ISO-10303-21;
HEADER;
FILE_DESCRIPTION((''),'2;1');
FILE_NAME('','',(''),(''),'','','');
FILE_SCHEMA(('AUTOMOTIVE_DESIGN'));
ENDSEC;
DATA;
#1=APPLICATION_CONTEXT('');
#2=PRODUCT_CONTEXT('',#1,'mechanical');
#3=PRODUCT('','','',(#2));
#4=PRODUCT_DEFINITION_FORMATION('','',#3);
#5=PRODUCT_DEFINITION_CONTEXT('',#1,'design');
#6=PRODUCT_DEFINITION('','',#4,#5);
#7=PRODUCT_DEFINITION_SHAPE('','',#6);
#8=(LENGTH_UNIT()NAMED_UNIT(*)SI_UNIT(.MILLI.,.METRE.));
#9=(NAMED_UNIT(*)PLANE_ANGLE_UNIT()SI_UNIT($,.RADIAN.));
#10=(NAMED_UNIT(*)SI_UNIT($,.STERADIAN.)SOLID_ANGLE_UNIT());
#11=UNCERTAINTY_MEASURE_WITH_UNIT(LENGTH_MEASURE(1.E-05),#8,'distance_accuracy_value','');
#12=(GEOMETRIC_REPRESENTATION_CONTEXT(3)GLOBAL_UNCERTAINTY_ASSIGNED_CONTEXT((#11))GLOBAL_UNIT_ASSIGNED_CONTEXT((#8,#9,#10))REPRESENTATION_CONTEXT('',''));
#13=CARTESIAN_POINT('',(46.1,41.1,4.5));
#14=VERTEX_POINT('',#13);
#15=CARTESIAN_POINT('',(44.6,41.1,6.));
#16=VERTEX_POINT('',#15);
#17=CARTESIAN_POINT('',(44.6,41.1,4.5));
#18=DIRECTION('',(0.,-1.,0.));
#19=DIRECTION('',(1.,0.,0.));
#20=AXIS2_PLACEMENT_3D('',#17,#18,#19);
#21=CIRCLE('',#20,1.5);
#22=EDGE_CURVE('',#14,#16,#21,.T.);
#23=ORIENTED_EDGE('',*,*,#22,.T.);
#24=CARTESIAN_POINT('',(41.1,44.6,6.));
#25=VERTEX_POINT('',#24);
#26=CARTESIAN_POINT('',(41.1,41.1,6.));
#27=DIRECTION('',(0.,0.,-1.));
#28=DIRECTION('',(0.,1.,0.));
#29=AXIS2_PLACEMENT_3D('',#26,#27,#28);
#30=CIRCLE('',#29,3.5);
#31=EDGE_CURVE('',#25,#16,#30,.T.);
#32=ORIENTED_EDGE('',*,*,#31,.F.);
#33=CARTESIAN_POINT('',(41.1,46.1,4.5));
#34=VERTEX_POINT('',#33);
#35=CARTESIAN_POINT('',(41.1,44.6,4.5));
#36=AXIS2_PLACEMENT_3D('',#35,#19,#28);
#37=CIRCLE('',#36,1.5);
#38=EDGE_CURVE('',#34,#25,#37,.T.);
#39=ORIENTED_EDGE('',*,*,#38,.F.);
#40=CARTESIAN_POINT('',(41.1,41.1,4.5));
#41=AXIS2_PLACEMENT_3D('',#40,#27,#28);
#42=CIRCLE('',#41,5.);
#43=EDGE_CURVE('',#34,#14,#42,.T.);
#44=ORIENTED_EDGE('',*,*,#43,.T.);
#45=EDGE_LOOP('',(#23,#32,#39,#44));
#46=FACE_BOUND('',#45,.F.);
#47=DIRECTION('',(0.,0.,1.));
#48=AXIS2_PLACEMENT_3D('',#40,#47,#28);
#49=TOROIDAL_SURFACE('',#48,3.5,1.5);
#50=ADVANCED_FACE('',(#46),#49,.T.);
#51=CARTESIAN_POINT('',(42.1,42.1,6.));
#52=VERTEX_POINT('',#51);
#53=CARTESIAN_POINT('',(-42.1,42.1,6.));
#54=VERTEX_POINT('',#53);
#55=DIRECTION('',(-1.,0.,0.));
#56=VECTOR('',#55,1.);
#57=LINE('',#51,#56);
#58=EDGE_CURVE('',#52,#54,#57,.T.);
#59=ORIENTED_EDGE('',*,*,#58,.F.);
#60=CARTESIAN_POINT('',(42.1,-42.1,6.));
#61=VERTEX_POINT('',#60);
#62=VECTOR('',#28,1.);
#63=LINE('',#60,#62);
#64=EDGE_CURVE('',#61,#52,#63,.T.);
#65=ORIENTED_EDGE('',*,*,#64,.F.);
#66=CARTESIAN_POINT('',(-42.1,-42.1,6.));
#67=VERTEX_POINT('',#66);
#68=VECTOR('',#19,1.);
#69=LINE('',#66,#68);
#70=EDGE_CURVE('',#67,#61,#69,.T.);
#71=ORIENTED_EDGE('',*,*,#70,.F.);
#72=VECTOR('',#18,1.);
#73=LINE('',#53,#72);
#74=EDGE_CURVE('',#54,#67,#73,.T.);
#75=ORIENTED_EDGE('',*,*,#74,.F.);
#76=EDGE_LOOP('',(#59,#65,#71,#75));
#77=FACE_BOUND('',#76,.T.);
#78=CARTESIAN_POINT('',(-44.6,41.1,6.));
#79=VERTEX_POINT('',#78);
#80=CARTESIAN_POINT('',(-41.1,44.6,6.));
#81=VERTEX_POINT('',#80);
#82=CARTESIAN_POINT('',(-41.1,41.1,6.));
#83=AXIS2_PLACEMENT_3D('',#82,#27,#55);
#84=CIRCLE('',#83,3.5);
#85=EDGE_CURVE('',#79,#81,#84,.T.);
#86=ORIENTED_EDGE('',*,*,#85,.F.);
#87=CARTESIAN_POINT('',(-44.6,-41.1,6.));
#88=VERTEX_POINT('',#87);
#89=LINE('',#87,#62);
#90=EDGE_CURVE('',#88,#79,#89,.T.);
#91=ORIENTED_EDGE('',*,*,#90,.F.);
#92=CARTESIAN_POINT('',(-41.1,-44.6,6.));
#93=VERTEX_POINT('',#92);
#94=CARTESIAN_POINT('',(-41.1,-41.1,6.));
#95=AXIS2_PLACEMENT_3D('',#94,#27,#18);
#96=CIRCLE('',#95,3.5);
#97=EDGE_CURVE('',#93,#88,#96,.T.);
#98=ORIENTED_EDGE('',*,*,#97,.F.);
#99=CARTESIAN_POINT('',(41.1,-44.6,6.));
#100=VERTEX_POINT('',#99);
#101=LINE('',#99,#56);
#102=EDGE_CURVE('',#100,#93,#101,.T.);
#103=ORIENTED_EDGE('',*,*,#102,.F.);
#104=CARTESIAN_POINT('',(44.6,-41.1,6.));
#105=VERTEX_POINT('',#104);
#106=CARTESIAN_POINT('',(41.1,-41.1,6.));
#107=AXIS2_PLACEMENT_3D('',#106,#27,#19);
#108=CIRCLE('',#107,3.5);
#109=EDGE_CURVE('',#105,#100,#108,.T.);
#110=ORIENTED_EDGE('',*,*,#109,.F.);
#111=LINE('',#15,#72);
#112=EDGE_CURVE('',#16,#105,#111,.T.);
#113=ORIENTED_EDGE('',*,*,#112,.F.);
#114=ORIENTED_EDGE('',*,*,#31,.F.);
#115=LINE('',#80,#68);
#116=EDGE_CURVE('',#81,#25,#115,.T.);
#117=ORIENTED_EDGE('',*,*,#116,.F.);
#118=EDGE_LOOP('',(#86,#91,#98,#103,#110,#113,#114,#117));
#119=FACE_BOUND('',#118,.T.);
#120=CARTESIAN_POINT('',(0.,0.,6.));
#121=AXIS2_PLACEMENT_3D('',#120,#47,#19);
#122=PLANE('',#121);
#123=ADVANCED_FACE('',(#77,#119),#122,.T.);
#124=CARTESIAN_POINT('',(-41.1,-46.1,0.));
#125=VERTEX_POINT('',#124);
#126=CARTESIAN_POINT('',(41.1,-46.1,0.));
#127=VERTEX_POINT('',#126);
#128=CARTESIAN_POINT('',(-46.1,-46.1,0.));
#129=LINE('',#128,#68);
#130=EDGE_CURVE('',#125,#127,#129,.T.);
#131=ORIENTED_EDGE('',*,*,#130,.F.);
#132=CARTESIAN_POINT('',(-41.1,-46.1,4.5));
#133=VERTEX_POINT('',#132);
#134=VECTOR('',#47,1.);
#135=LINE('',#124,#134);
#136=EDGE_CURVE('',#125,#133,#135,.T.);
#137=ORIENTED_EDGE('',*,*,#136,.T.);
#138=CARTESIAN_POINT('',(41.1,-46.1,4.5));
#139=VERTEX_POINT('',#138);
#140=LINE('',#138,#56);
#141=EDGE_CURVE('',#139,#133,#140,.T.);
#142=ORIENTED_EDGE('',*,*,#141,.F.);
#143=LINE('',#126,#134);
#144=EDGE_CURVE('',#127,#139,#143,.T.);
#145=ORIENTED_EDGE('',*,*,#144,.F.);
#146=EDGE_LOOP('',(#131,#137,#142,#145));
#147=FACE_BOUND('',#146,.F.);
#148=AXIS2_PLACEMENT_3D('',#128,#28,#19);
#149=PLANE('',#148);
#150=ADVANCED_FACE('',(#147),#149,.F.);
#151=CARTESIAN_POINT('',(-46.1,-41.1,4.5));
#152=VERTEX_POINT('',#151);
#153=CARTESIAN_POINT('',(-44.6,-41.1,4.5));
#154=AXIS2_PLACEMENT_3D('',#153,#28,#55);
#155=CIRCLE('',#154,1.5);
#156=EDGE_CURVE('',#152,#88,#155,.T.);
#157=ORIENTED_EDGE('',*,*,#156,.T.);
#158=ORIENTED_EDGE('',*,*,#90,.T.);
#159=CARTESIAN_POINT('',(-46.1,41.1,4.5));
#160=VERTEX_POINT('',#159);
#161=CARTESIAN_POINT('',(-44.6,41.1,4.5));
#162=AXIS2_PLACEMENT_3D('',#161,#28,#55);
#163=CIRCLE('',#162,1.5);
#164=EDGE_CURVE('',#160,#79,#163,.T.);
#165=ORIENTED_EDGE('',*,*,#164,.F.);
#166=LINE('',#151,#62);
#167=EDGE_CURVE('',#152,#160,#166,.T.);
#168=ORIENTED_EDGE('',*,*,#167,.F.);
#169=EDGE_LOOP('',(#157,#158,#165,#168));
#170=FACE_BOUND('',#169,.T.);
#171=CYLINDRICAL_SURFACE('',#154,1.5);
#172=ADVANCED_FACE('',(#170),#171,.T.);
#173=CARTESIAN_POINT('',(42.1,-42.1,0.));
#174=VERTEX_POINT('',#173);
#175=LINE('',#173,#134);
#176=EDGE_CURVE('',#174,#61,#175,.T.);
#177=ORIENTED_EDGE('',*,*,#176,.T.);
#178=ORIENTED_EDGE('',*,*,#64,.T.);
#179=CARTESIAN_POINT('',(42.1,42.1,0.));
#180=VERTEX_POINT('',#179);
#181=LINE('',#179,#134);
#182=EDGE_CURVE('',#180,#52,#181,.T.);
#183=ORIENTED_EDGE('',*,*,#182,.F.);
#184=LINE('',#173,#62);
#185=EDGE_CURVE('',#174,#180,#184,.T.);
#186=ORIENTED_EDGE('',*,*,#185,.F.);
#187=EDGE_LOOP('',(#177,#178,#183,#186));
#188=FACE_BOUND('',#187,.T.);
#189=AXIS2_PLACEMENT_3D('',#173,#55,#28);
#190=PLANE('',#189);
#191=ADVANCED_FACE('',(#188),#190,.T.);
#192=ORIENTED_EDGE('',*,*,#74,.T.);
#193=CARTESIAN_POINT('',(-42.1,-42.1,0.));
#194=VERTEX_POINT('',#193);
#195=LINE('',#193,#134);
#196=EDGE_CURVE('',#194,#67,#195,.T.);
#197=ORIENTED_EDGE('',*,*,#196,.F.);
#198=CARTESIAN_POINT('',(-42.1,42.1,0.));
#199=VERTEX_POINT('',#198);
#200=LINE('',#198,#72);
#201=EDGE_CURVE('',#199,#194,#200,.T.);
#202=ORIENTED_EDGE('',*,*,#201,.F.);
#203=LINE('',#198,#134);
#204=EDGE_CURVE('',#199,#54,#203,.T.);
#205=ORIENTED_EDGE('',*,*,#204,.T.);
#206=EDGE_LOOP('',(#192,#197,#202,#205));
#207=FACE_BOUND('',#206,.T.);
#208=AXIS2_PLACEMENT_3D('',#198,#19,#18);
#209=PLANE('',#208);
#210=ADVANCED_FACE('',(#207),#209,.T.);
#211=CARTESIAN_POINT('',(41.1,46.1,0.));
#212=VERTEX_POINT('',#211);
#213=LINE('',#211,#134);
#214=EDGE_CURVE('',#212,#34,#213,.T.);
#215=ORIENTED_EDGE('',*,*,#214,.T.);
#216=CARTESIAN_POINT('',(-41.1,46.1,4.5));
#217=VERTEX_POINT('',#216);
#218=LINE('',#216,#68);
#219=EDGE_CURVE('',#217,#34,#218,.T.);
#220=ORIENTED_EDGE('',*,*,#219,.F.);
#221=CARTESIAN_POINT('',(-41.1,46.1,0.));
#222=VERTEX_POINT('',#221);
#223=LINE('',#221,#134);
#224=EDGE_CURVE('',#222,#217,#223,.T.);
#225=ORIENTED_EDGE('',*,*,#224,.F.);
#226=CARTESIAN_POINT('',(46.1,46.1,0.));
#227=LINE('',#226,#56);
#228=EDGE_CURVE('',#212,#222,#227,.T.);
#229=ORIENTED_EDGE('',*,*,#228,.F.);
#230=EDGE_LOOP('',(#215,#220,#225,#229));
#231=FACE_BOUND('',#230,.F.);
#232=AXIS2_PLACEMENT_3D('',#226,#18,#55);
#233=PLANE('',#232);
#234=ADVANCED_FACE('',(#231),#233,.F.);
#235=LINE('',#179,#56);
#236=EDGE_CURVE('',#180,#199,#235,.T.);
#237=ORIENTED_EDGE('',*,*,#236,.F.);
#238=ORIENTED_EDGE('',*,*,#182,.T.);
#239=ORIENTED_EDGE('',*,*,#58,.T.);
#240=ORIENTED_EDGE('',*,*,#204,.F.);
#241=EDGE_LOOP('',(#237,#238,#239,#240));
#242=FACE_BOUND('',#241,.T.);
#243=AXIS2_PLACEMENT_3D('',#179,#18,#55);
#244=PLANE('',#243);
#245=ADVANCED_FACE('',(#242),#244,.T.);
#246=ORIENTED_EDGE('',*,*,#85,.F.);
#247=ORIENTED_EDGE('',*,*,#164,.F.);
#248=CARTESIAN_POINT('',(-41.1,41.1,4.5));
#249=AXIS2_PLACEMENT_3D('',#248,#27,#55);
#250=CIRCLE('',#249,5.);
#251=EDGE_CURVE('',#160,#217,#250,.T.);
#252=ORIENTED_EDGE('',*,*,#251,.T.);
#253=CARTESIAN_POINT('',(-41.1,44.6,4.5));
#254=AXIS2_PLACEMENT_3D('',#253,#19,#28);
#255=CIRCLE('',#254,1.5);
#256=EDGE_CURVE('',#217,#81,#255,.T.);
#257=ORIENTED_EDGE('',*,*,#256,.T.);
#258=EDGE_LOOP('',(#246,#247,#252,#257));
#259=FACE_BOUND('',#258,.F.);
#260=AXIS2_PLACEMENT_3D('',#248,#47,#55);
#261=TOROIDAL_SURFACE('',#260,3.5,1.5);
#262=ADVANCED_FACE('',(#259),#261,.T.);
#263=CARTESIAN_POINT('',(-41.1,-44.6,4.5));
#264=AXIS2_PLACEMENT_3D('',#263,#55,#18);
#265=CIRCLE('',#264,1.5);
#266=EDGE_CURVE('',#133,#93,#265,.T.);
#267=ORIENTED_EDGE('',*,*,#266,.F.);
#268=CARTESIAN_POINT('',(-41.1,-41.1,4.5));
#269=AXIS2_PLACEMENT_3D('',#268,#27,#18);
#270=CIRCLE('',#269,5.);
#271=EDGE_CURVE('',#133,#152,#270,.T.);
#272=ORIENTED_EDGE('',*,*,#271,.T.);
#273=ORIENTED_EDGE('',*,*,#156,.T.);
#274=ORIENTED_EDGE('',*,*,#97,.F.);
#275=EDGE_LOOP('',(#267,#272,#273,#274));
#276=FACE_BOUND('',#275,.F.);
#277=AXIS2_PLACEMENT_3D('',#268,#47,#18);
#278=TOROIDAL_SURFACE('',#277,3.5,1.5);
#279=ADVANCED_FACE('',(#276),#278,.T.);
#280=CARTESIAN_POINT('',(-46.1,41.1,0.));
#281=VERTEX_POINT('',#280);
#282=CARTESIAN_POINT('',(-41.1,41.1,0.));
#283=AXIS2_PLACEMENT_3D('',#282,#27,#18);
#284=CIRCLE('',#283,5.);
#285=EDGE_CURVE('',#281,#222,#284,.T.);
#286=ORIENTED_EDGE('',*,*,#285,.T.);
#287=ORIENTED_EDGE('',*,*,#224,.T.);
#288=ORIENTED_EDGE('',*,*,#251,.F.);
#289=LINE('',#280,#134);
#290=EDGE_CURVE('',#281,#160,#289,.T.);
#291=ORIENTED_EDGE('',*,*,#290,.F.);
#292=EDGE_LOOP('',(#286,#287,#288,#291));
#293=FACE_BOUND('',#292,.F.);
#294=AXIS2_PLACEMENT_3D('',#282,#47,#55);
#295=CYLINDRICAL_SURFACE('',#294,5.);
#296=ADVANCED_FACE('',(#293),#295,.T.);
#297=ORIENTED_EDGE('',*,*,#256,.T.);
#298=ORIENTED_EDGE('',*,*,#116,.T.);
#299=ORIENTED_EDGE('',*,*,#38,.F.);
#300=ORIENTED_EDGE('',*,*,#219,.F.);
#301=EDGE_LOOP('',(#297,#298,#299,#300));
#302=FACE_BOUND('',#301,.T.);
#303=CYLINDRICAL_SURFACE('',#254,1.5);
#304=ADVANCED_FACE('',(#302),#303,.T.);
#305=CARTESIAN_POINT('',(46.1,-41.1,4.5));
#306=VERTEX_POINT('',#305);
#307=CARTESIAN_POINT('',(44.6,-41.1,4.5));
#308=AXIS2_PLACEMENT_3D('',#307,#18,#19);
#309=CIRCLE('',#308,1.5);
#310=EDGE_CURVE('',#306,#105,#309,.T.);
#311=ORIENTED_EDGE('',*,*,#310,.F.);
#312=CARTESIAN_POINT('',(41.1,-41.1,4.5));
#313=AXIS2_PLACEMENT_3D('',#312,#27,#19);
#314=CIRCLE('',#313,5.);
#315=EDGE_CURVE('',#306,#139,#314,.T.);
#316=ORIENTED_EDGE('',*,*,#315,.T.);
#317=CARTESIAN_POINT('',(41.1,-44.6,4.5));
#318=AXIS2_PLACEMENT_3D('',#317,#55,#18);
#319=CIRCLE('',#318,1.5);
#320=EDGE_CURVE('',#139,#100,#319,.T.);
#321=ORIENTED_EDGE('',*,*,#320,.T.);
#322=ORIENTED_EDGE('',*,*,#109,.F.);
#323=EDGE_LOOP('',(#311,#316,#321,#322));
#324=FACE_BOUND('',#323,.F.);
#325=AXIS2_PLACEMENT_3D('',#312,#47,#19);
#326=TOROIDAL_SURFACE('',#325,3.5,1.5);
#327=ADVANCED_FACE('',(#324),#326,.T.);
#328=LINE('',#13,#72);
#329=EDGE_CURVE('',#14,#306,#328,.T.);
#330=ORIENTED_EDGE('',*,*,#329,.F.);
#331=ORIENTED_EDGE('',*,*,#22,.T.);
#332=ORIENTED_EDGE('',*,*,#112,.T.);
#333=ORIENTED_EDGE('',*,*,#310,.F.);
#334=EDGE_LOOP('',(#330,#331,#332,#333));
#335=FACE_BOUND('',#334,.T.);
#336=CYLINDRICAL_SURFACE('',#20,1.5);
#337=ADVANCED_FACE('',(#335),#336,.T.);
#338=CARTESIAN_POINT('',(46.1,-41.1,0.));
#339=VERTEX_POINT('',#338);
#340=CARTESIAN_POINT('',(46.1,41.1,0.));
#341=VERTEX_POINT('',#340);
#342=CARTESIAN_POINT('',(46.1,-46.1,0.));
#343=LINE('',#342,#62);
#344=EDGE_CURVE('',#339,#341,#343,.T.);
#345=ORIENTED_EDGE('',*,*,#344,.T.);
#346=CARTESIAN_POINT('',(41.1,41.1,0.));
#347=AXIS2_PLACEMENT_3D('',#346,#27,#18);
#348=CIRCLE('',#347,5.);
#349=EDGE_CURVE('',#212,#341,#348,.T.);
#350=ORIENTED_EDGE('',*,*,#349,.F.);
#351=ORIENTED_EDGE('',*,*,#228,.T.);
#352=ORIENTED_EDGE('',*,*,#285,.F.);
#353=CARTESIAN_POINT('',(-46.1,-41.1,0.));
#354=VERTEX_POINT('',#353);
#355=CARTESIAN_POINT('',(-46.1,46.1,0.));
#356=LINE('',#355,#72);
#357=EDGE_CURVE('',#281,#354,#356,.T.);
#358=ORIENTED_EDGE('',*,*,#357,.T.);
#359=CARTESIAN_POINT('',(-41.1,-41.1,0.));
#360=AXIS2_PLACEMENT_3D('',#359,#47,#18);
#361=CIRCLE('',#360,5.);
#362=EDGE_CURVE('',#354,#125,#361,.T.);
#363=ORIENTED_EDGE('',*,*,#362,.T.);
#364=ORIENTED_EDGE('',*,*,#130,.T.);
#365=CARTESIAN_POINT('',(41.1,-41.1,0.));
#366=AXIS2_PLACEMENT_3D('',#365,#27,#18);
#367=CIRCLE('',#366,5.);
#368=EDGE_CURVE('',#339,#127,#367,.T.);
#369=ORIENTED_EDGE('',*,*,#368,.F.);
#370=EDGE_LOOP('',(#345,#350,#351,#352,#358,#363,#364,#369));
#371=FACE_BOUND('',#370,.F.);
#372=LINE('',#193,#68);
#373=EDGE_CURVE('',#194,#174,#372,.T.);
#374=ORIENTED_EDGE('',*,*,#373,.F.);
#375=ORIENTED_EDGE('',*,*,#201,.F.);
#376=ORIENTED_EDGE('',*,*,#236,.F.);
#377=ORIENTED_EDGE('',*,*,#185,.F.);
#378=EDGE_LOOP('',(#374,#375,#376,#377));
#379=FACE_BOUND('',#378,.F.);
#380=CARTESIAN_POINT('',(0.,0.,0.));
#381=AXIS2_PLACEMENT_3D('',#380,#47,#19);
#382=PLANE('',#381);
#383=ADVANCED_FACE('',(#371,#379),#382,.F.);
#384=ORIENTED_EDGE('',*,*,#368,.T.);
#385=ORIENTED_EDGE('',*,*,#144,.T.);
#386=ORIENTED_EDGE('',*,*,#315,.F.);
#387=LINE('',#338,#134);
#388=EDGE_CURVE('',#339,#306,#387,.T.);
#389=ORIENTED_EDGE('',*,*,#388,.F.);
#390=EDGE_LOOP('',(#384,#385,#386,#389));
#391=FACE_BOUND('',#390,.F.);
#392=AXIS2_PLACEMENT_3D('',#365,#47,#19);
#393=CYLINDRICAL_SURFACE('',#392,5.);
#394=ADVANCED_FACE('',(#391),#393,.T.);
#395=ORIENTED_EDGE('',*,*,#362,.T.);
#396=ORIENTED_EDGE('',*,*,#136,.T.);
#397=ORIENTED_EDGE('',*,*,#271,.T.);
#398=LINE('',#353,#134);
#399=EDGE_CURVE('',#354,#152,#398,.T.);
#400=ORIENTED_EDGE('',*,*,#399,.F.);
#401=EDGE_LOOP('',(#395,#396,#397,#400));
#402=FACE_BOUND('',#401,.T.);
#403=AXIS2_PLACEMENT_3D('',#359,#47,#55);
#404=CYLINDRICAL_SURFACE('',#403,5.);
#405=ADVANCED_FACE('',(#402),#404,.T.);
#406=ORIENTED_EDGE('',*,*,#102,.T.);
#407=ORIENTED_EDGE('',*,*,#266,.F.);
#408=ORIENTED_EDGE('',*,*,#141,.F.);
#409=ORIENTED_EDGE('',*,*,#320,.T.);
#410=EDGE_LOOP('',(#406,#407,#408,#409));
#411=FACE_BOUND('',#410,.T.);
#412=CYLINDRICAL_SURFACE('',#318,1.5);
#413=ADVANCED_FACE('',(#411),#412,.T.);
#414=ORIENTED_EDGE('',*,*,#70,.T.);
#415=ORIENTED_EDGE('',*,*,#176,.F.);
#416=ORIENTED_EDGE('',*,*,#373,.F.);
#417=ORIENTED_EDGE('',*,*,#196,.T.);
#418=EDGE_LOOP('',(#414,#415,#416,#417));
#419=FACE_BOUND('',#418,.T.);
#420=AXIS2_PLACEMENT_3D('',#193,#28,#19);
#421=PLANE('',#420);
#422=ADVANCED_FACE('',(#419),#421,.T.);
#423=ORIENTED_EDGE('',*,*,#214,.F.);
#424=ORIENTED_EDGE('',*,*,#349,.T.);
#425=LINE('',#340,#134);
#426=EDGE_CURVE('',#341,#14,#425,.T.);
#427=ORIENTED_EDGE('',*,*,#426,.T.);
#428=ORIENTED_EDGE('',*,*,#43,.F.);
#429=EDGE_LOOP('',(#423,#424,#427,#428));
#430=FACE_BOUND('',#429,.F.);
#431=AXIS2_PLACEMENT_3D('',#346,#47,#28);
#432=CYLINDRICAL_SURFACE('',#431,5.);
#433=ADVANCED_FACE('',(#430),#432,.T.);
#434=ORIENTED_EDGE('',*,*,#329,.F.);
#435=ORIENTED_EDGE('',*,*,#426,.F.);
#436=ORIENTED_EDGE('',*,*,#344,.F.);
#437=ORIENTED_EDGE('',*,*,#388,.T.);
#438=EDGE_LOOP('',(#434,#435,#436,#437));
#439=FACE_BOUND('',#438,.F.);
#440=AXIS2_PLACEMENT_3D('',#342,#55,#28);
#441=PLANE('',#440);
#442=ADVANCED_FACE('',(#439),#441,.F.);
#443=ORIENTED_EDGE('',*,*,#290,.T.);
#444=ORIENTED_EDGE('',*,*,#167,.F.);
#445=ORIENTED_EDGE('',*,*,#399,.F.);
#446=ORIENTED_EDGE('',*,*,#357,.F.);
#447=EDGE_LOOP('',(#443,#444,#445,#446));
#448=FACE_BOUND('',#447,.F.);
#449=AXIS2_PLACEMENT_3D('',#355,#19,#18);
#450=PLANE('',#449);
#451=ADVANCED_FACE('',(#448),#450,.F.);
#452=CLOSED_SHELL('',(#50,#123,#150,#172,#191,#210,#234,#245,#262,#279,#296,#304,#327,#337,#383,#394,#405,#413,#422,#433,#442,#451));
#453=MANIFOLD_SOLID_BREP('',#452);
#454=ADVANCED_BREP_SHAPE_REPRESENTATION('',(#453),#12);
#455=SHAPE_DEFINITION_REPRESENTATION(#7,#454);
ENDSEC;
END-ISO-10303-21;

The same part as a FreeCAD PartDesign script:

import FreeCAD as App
import Part
import Sketcher
from FreeCAD import Vector
Q = App.Units.Quantity


def edges_at(feature, points):
    """Names of the edges that pass closest to the given points."""
    edges = feature.Shape.Edges
    near = lambda p: min(range(len(edges)), key=lambda i: edges[i].distToShape(Part.Vertex(*p))[0])
    return sorted({f"Edge{near(p) + 1}" for p in points})

doc = App.newDocument("Part")
body = doc.addObject("PartDesign::Body", "Body")

# Sketch on XY plane
sketch1 = body.newObject("Sketcher::SketchObject", "Sketch")
sketch1.AttachmentSupport = (doc.getObject("XY_Plane"), [""])
sketch1.MapMode = "FlatFace"
sketch1.addGeometry([
    Part.LineSegment(Vector(-46, 46, 0), Vector(-46, -46, 0)),  # 0
    Part.LineSegment(Vector(-46, -46, 0), Vector(46, -46, 0)),  # 1
    Part.LineSegment(Vector(46, -46, 0), Vector(46, 46, 0)),  # 2
    Part.LineSegment(Vector(46, 46, 0), Vector(-46, 46, 0)),  # 3
    Part.LineSegment(Vector(-42, 42, 0), Vector(42, 42, 0)),  # 4
    Part.LineSegment(Vector(42, 42, 0), Vector(42, -42, 0)),  # 5
    Part.LineSegment(Vector(42, -42, 0), Vector(-42, -42, 0)),  # 6
    Part.LineSegment(Vector(-42, -42, 0), Vector(-42, 42, 0)),  # 7
], False)
sketch1.addConstraint([
    Sketcher.Constraint("Coincident", 0, 2, 1, 1),
    Sketcher.Constraint("Coincident", 1, 2, 2, 1),
    Sketcher.Constraint("Coincident", 2, 2, 3, 1),
    Sketcher.Constraint("Coincident", 3, 2, 0, 1),
    Sketcher.Constraint("Coincident", 4, 2, 5, 1),
    Sketcher.Constraint("Coincident", 5, 2, 6, 1),
    Sketcher.Constraint("Coincident", 6, 2, 7, 1),
    Sketcher.Constraint("Coincident", 7, 2, 4, 1),
    Sketcher.Constraint("Vertical", 0),
    Sketcher.Constraint("Horizontal", 1),
    Sketcher.Constraint("Vertical", 2),
    Sketcher.Constraint("Horizontal", 3),
    Sketcher.Constraint("Horizontal", 4),
    Sketcher.Constraint("Vertical", 5),
    Sketcher.Constraint("Horizontal", 6),
    Sketcher.Constraint("Vertical", 7),
    Sketcher.Constraint("Symmetric", 0, 2, 2, 2, -1, 1),
    Sketcher.Constraint("Symmetric", 4, 2, 6, 2, -1, 1),
    Sketcher.Constraint("Equal", 3, 0),
    Sketcher.Constraint("Equal", 6, 5),
    Sketcher.Constraint("DistanceX", 4, 1, 4, 2, Q("84.2 mm")),
    Sketcher.Constraint("DistanceX", 4, 2, 2, 2, Q("4 mm")),
])
pad1 = body.newObject("PartDesign::Pad", "Pad")
pad1.Profile = sketch1
pad1.Length = 6
doc.recompute()

fillet = body.newObject("PartDesign::Fillet", "Fillet")
fillet.Base = (pad1, edges_at(pad1, [
    (-46.1, -46.1, 3),
    (46.1, -46.1, 3),
    (46.1, 46.1, 3),
    (-46.1, 46.1, 3),
]))
fillet.Radius = 5
doc.recompute()

fillet2 = body.newObject("PartDesign::Fillet", "Fillet001")
fillet2.Base = (fillet, edges_at(fillet, [
    (-44.636, 44.636, 6),
    (-46.1, 0, 6),
    (-44.636, -44.636, 6),
    (0, -46.1, 6),
    (44.636, -44.636, 6),
    (46.1, 0, 6),
    (44.636, 44.636, 6),
    (0, 46.1, 6),
]))
fillet2.Radius = 1.5

doc.recompute()
